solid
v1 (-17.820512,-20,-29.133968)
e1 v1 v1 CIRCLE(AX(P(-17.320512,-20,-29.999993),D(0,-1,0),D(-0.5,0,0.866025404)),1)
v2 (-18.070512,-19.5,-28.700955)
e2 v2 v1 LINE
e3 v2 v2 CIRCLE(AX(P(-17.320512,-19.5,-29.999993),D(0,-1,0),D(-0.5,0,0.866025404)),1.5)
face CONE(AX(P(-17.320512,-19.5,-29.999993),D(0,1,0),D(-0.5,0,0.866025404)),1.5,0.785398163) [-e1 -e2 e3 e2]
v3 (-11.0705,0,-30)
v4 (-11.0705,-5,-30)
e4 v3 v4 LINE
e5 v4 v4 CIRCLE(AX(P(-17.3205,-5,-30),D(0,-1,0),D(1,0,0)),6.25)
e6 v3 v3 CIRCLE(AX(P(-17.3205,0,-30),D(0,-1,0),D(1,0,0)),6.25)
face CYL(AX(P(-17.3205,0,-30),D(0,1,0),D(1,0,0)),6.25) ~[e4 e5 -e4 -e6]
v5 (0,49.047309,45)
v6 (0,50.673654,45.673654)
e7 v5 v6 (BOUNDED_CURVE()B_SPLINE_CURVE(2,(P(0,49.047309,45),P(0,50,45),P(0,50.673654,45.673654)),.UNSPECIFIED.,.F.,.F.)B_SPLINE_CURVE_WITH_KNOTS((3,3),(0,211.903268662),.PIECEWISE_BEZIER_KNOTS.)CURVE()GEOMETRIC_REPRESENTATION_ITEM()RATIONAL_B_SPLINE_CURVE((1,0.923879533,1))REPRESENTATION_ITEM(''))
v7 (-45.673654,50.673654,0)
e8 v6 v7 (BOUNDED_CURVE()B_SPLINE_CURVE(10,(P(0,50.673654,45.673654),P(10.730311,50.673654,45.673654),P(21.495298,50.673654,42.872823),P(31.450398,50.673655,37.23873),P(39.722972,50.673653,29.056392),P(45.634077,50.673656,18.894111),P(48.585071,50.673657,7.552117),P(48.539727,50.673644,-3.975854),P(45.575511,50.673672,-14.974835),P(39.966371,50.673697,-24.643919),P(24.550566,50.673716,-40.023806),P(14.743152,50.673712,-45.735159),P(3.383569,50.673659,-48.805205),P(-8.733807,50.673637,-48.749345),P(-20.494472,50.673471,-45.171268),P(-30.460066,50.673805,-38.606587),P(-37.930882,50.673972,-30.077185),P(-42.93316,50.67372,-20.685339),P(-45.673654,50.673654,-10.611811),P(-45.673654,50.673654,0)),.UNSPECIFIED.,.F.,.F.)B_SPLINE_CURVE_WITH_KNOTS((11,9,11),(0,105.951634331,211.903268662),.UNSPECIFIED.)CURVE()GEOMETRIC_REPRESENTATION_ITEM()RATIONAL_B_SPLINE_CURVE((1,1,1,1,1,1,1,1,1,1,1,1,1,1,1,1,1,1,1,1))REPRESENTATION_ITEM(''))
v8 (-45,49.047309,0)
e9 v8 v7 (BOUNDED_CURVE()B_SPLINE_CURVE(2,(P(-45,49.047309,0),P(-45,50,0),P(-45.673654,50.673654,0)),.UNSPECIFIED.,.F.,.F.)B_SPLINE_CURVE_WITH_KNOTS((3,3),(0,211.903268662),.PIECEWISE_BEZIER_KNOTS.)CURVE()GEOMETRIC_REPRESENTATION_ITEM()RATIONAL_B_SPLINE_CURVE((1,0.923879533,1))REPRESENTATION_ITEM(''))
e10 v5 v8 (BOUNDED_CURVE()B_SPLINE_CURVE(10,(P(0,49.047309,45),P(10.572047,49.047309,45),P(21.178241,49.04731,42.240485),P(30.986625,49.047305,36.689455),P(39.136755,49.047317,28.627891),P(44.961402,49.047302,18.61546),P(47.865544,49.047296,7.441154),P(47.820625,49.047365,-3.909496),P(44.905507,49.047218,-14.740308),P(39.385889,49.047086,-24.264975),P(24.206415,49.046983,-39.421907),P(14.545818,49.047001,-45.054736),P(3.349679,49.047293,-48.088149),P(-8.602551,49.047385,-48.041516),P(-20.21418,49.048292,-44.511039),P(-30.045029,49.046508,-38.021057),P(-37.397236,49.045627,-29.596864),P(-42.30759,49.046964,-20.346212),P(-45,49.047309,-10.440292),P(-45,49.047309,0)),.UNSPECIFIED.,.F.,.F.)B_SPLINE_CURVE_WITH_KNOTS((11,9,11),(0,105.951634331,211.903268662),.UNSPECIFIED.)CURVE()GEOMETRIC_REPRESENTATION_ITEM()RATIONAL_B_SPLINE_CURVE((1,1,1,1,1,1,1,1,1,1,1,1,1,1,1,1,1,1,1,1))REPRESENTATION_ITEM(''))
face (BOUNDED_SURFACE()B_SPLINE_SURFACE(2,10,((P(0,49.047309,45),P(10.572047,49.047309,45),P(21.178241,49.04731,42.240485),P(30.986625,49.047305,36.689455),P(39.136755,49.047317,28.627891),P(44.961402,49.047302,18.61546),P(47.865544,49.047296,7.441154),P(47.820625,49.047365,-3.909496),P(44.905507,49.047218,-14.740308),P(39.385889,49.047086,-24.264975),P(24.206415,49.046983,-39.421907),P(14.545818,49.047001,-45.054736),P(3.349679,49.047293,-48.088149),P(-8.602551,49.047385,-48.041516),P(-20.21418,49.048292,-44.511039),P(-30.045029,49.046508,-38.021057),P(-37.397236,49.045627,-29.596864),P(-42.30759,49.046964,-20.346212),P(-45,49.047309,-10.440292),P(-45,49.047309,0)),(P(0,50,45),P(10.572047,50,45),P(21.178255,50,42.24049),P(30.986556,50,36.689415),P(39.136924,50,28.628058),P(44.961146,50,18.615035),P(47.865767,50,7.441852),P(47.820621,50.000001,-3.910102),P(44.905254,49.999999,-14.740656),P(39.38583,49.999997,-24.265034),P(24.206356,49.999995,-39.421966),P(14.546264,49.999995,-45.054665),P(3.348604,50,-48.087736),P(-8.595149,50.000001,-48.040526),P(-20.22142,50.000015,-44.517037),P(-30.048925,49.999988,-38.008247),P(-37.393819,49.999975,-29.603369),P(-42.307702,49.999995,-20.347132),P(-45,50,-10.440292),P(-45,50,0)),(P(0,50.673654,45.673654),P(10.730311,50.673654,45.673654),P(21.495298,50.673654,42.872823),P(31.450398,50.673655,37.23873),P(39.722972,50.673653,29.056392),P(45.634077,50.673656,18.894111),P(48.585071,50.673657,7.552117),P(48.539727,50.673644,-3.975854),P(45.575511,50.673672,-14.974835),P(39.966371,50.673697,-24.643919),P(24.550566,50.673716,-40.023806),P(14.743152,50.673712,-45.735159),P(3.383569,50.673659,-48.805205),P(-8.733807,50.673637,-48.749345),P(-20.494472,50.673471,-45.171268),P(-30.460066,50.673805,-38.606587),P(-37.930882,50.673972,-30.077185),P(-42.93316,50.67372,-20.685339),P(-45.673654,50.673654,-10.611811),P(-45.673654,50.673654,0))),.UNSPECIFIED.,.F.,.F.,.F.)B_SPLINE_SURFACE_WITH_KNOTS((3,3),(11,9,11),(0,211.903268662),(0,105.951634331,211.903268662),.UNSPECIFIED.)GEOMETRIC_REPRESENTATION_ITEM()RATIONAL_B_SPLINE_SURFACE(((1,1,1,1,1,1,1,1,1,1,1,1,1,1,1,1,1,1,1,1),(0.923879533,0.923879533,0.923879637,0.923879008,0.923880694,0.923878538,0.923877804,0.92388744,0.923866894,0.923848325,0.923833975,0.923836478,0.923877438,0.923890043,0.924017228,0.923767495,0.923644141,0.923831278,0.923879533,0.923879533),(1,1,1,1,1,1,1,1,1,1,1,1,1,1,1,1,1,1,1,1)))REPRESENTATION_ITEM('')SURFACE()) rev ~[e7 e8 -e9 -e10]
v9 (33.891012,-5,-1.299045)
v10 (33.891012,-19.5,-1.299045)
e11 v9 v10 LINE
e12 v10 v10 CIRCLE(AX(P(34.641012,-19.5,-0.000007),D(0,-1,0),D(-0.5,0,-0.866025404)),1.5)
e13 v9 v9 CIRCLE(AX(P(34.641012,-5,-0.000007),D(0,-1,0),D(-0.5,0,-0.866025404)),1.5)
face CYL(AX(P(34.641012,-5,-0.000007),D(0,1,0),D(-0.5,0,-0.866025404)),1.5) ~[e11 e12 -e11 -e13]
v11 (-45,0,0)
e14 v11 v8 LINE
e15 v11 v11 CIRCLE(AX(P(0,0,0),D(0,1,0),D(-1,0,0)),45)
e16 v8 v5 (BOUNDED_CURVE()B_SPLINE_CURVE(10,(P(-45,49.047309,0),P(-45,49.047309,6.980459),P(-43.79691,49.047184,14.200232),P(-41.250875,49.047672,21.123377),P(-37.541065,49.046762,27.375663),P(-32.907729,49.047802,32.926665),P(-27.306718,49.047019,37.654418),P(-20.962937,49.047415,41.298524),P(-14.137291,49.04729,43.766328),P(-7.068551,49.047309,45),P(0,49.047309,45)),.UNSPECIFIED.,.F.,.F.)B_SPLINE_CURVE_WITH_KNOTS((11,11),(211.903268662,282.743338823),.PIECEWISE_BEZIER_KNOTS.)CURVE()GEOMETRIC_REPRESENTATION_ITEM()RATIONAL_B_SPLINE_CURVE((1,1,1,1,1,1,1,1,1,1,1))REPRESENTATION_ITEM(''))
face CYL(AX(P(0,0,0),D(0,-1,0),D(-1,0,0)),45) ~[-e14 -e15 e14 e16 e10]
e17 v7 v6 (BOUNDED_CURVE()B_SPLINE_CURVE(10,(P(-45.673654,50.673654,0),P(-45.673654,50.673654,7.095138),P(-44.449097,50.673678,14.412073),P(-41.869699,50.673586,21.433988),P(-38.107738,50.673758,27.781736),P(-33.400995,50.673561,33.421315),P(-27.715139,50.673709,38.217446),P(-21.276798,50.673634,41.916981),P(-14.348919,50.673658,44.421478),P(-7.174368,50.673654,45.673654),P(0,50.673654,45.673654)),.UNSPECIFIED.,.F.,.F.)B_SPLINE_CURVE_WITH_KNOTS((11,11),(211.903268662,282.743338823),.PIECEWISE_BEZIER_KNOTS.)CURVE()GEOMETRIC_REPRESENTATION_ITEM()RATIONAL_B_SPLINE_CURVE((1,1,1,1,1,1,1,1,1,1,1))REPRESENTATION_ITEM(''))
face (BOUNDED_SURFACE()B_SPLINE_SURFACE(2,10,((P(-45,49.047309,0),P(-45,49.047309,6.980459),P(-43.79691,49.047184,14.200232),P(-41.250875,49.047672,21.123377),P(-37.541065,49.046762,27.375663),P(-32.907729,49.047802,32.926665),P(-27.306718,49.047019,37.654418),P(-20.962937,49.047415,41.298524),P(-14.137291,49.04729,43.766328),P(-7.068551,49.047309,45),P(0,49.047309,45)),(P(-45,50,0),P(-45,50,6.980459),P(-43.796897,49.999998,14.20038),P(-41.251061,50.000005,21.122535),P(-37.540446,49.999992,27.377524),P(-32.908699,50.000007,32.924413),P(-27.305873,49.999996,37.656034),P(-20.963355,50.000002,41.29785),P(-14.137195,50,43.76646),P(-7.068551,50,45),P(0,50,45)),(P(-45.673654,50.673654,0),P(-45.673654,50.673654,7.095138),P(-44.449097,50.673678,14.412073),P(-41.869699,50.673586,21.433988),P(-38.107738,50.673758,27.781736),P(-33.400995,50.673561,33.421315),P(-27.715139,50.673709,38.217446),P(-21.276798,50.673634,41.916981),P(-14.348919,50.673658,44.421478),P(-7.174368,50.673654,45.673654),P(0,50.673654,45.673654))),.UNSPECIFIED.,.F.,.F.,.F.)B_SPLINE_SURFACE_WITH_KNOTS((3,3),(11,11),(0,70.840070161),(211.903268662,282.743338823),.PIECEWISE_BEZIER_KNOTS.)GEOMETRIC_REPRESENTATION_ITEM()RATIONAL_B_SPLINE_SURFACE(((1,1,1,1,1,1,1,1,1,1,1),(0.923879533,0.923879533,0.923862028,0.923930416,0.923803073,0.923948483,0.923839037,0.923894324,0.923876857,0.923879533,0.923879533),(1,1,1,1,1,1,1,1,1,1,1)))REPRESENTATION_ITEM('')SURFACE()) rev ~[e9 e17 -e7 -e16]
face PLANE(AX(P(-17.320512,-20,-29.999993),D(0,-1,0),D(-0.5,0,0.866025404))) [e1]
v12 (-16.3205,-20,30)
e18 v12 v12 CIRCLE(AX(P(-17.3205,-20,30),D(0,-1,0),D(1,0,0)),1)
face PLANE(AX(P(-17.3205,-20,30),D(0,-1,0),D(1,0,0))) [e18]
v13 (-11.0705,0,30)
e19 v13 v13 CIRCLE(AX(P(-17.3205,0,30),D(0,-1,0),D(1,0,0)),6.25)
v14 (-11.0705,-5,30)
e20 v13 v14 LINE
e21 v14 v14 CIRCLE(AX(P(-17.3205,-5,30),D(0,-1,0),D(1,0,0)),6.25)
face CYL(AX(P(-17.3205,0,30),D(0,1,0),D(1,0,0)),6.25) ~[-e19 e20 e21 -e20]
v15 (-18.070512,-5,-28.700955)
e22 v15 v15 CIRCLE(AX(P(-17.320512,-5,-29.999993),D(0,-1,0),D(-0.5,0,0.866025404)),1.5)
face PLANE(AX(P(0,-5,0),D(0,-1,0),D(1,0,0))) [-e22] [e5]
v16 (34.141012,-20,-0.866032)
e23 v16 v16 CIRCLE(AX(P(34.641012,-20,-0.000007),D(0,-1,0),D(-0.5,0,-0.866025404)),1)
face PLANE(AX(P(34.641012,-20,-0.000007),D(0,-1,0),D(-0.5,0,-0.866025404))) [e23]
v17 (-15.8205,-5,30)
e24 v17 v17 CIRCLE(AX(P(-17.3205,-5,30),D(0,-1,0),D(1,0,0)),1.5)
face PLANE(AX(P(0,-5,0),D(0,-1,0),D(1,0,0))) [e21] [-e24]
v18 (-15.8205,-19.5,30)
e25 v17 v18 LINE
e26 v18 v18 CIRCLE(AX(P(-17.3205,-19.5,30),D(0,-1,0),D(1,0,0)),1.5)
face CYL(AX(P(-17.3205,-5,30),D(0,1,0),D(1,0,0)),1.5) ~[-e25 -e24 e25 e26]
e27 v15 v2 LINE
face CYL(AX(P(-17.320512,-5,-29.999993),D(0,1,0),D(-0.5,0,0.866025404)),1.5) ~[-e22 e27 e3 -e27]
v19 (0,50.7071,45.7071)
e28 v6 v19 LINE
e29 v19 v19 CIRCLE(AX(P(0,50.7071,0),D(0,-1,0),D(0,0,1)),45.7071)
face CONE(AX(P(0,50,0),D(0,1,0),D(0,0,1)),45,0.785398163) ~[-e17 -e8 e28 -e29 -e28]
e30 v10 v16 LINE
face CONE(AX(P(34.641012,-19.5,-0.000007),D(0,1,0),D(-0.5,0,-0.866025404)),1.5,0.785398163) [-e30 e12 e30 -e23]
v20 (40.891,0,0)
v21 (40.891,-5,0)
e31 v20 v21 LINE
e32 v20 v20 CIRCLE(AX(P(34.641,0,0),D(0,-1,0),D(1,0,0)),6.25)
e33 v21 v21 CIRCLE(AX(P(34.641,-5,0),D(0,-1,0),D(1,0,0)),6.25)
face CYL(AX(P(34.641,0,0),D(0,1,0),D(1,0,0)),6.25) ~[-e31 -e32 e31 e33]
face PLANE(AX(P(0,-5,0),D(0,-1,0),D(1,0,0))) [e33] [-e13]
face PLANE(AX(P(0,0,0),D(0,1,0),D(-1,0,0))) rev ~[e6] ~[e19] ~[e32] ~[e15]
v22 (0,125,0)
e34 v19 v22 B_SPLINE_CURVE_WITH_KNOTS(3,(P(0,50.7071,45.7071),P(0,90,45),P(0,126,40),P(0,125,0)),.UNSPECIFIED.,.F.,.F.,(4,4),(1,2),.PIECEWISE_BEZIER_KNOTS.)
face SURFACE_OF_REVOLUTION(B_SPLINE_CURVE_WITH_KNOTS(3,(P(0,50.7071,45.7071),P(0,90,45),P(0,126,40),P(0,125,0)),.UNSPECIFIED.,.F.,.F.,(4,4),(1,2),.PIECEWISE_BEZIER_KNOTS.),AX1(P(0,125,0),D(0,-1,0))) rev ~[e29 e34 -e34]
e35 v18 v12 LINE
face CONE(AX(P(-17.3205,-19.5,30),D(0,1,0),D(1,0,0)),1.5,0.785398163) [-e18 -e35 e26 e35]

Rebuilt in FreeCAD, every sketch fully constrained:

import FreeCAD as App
import Part
import Sketcher
Q = App.Units.Quantity


def edges_at(feature, points):
    """Names of the edges that pass closest to the given points."""
    edges = feature.Shape.Edges
    near = lambda p: min(range(len(edges)), key=lambda i: edges[i].distToShape(Part.Vertex(*p))[0])
    return sorted({f"Edge{near(p) + 1}" for p in points})

doc = App.newDocument("Part")
params = doc.addObject("Spreadsheet::Sheet", "Params")
for row, (alias, value) in enumerate([
    ("sketch1_diameter", "90 mm"),
    ("pad1_length", "50 mm"),
    ("sketch2_width", "75 mm"),
    ("sketch2_height", "45 mm"),
    ("revolution_angle", "360 deg"),
    ("fillet_radius", "2.3 mm"),
    ("sketch3_diameter", "12.5 mm"),
    ("pad2_length", "5 mm"),
    ("sketch4_diameter", "3 mm"),
    ("pad3_length", "15 mm"),
    ("chamfer_size", "0.5 mm"),
], start=1):
    params.set(f"A{row}", alias)
    params.set(f"B{row}", "=" + value)
    params.setAlias(f"B{row}", alias)

body = doc.addObject("PartDesign::Body", "Body")

sketch1 = body.newObject("Sketcher::SketchObject", "Sketch")
sketch1.AttachmentSupport = (doc.getObject("XZ_Plane"), [""])
sketch1.MapMode = "FlatFace"
sketch1.addGeometry(Part.Circle(App.Vector(0, 0, 0), App.Vector(0, 0, 1), 45), False)
sketch1.addConstraint([
    Sketcher.Constraint("Coincident", 0, 3, -1, 1),
    Sketcher.Constraint("Diameter", 0, Q("90 mm")),
])
sketch1.setExpression("Constraints[1]", "Params.sketch1_diameter")
pad1 = body.newObject("PartDesign::Pad", "Pad")
pad1.Profile = sketch1
pad1.setExpression("Length", "Params.pad1_length")
pad1.Reversed = True

sketch2 = body.newObject("Sketcher::SketchObject", "Sketch001")
sketch2.AttachmentSupport = (doc.getObject("YZ_Plane"), [""])
sketch2.MapMode = "FlatFace"
sketch2.addGeometry([
    Part.LineSegment(App.Vector(50, 45, 0), App.Vector(50, 0, 0)),
    Part.LineSegment(App.Vector(50, 0, 0), App.Vector(125, 0, 0)),
    Part.BSplineCurve([App.Vector(50.7071, 45.7071, 0), App.Vector(90, 45, 0), App.Vector(126, 40, 0), App.Vector(125, 0, 0)], [4, 4], [1, 2], False, 3, [1, 1, 1, 1], False),
    Part.LineSegment(App.Vector(50.7071, 45.7071, 0), App.Vector(50, 45, 0)),
], False)
sketch2.addConstraint([
    Sketcher.Constraint("Block", 2),
    Sketcher.Constraint("Coincident", 0, 2, 1, 1),
    Sketcher.Constraint("Coincident", 1, 2, 2, 2),
    Sketcher.Constraint("Coincident", 2, 1, 3, 1),
    Sketcher.Constraint("Coincident", 3, 2, 0, 1),
    Sketcher.Constraint("Vertical", 0),
    Sketcher.Constraint("Horizontal", 1),
    Sketcher.Constraint("DistanceX", 1, 1, 1, 2, Q("75 mm")),
    Sketcher.Constraint("DistanceY", 0, 2, 0, 1, Q("45 mm")),
])
sketch2.setExpression("Constraints[7]", "Params.sketch2_width")
sketch2.setExpression("Constraints[8]", "Params.sketch2_height")
revolution = body.newObject("PartDesign::Revolution", "Revolution")
revolution.Profile = sketch2
revolution.ReferenceAxis = (sketch2, ["H_Axis"])
revolution.setExpression("Angle", "Params.revolution_angle")
doc.recompute()

fillet = body.newObject("PartDesign::Fillet", "Fillet")
fillet.Base = (revolution, edges_at(revolution, [(31.82, 50, -31.82), (-31.82, 50, 31.82)]))
fillet.setExpression("Radius", "Params.fillet_radius")

sketch3 = body.newObject("Sketcher::SketchObject", "Sketch002")
sketch3.AttachmentSupport = (doc.getObject("XZ_Plane"), [""])
sketch3.MapMode = "FlatFace"
sketch3.addGeometry([
    Part.Circle(App.Vector(-17, 30, 0), App.Vector(0, 0, 1), 6),
    Part.Circle(App.Vector(35, 0, 0), App.Vector(0, 0, 1), 6),
    Part.Circle(App.Vector(-17, -30, 0), App.Vector(0, 0, 1), 6),
], False)
sketch3.addConstraint([
    Sketcher.Constraint("Equal", 0, 1),
    Sketcher.Constraint("Equal", 1, 2),
    Sketcher.Constraint("Symmetric", 0, 3, 2, 3, -1),
    Sketcher.Constraint("PointOnObject", 1, 3, -1),
    Sketcher.Constraint("Diameter", 0, Q("12.5 mm")),
    Sketcher.Constraint("DistanceY", 2, 3, 0, 3, Q("60 mm")),
    Sketcher.Constraint("DistanceX", -1, 1, 1, 3, Q("34.641 mm")),
    Sketcher.Constraint("DistanceX", 0, 3, -1, 1, Q("17.3205 mm")),
])
sketch3.setExpression("Constraints[4]", "Params.sketch3_diameter")
pad2 = body.newObject("PartDesign::Pad", "Pad001")
pad2.Profile = sketch3
pad2.setExpression("Length", "Params.pad2_length")

sketch4 = body.newObject("Sketcher::SketchObject", "Sketch003")
sketch4.AttachmentSupport = (doc.getObject("XZ_Plane"), [""])
sketch4.MapMode = "FlatFace"
sketch4.AttachmentOffset = App.Placement(App.Vector(0, 0, 5), App.Rotation())
sketch4.addGeometry(Part.Circle(App.Vector(-17.3, 30, 0), App.Vector(0, 0, 1), 1.5), False)
sketch4.addConstraint([
    Sketcher.Constraint("Diameter", 0, Q("3 mm")),
    Sketcher.Constraint("DistanceY", -1, 1, 0, 3, Q("30 mm")),
    Sketcher.Constraint("DistanceX", 0, 3, -1, 1, Q("17.3205 mm")),
])
sketch4.setExpression("Constraints[0]", "Params.sketch4_diameter")
pad3 = body.newObject("PartDesign::Pad", "Pad002")
pad3.Profile = sketch4
pad3.setExpression("Length", "Params.pad3_length")
doc.recompute()

chamfer = body.newObject("PartDesign::Chamfer", "Chamfer")
chamfer.Base = (pad3, edges_at(pad3, [(-18.82, -20, 30)]))
chamfer.setExpression("Size", "Params.chamfer_size")
doc.recompute()

polarpattern = body.newObject("PartDesign::PolarPattern", "PolarPattern")
polarpattern.Originals = [pad3, chamfer]
polarpattern.Axis = (doc.getObject("Y_Axis"), [""])
polarpattern.Angle = 360
polarpattern.Occurrences = 3
body.Tip = polarpattern

doc.recompute()
